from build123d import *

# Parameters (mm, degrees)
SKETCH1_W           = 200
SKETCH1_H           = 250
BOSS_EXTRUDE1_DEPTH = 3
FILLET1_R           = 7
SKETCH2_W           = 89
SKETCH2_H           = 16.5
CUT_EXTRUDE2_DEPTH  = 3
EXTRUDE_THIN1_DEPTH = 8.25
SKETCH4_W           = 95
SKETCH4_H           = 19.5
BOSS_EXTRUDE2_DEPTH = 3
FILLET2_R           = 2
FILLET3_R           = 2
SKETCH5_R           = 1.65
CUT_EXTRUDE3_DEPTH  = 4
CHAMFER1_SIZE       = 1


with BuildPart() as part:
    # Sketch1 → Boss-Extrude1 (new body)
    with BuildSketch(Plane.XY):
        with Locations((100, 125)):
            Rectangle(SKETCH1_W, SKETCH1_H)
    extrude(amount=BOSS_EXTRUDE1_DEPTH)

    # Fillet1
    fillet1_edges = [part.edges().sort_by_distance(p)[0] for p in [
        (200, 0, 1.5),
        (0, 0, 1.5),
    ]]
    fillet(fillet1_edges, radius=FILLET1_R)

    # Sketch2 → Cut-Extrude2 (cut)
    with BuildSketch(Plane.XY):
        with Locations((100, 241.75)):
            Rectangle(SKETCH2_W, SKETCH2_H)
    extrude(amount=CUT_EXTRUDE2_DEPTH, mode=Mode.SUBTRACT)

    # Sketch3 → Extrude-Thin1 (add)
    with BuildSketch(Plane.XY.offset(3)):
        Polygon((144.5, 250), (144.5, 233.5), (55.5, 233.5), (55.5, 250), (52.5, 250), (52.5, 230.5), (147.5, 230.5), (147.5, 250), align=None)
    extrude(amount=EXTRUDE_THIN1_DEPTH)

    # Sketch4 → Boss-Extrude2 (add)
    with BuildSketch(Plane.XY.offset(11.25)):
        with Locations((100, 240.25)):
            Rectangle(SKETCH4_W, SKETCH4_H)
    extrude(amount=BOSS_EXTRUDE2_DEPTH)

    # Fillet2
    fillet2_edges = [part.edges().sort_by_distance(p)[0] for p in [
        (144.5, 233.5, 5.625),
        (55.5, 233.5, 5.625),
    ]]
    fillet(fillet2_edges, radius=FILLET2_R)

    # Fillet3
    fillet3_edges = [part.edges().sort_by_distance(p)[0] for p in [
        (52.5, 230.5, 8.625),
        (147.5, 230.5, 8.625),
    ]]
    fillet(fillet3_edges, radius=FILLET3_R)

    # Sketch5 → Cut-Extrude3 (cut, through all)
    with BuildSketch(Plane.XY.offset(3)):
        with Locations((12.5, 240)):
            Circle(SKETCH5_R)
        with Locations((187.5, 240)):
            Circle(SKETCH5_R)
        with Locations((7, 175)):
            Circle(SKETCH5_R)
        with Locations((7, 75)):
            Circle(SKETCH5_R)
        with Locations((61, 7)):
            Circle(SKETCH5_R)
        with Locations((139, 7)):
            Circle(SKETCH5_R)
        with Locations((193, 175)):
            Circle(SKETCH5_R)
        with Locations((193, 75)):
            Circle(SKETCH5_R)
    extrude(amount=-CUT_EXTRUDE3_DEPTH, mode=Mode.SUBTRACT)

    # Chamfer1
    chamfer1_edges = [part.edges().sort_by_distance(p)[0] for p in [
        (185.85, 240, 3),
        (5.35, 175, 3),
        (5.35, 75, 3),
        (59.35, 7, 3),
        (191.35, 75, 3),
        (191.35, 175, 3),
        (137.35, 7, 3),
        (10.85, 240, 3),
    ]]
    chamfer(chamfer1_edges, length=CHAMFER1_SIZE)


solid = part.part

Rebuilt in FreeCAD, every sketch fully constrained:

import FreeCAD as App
import Part
import Sketcher
from FreeCAD import Vector


def edges_at(feature, points):
    """Names of the edges that pass closest to the given points."""
    edges = feature.Shape.Edges
    near = lambda p: min(range(len(edges)), key=lambda i: edges[i].distToShape(Part.Vertex(*p))[0])
    return sorted({f"Edge{near(p) + 1}" for p in points})

doc = App.newDocument("Part")
body = doc.addObject("PartDesign::Body", "Body")

# Sketch on XY plane
sketch1 = doc.addObject("Sketcher::SketchObject", "Sketch")
body.addObject(sketch1)
sketch1.AttachmentSupport = (doc.XY_Plane, [""])
sketch1.MapMode = "FlatFace"
sketch1.addGeometry([
    Part.LineSegment(Vector(0, 250, 0), Vector(0, 0, 0)),
    Part.LineSegment(Vector(0, 0, 0), Vector(200, 0, 0)),
    Part.LineSegment(Vector(200, 0, 0), Vector(200, 250, 0)),
    Part.LineSegment(Vector(200, 250, 0), Vector(0, 250, 0)),
], False)
sketch1.addConstraint([
    Sketcher.Constraint("Coincident", 0, 2, 1, 1),
    Sketcher.Constraint("Coincident", 1, 2, 2, 1),
    Sketcher.Constraint("Coincident", 2, 2, 3, 1),
    Sketcher.Constraint("Coincident", 3, 2, 0, 1),
    Sketcher.Constraint("Vertical", 0),
    Sketcher.Constraint("Horizontal", 1),
    Sketcher.Constraint("Vertical", 2),
    Sketcher.Constraint("Horizontal", 3),
    Sketcher.Constraint("Coincident", 0, 2, -1, 1),
    Sketcher.Constraint("DistanceX", 1, 1, 1, 2, 200.0),
    Sketcher.Constraint("DistanceY", 0, 2, 0, 1, 250.0),
])
pad1 = doc.addObject("PartDesign::Pad", "Pad")
body.addObject(pad1)
pad1.Profile = sketch1
pad1.Length = 3
doc.recompute()

fillet = doc.addObject("PartDesign::Fillet", "Fillet")
body.addObject(fillet)
fillet.Base = (pad1, edges_at(pad1, [(200, 0, 1.5), (0, 0, 1.5)]))
fillet.Radius = 7

# Sketch on XY plane
sketch2 = doc.addObject("Sketcher::SketchObject", "Sketch001")
body.addObject(sketch2)
sketch2.AttachmentSupport = (doc.XY_Plane, [""])
sketch2.MapMode = "FlatFace"
sketch2.addGeometry([
    Part.LineSegment(Vector(56, 250, 0), Vector(56, 234, 0)),
    Part.LineSegment(Vector(56, 234, 0), Vector(144, 234, 0)),
    Part.LineSegment(Vector(144, 234, 0), Vector(144, 250, 0)),
    Part.LineSegment(Vector(144, 250, 0), Vector(56, 250, 0)),
], False)
sketch2.addConstraint([
    Sketcher.Constraint("Coincident", 0, 2, 1, 1),
    Sketcher.Constraint("Coincident", 1, 2, 2, 1),
    Sketcher.Constraint("Coincident", 2, 2, 3, 1),
    Sketcher.Constraint("Coincident", 3, 2, 0, 1),
    Sketcher.Constraint("Vertical", 0),
    Sketcher.Constraint("Horizontal", 1),
    Sketcher.Constraint("Vertical", 2),
    Sketcher.Constraint("Horizontal", 3),
    Sketcher.Constraint("DistanceX", 1, 1, 1, 2, 89.0),
    Sketcher.Constraint("DistanceY", 0, 2, 0, 1, 16.5),
    Sketcher.Constraint("DistanceY", -1, 1, 2, 2, 250.0),
    Sketcher.Constraint("DistanceX", -1, 1, 0, 2, 55.5),
])
pocket1 = doc.addObject("PartDesign::Pocket", "Pocket")
body.addObject(pocket1)
pocket1.Profile = sketch2
pocket1.Length = 3
pocket1.Reversed = True

# Sketch on XY plane
sketch3 = doc.addObject("Sketcher::SketchObject", "Sketch002")
body.addObject(sketch3)
sketch3.AttachmentSupport = (doc.XY_Plane, [""])
sketch3.MapMode = "FlatFace"
sketch3.AttachmentOffset = App.Placement(Vector(0, 0, 3), App.Rotation())
sketch3.addGeometry([
    Part.LineSegment(Vector(144.5, 250, 0), Vector(144.5, 233.5, 0)),  # 0
    Part.LineSegment(Vector(144.5, 233.5, 0), Vector(55.5, 233.5, 0)),  # 1
    Part.LineSegment(Vector(55.5, 233.5, 0), Vector(55.5, 250, 0)),  # 2
    Part.LineSegment(Vector(55.5, 250, 0), Vector(52.5, 250, 0)),  # 3
    Part.LineSegment(Vector(52.5, 250, 0), Vector(52.5, 230.5, 0)),  # 4
    Part.LineSegment(Vector(52.5, 230.5, 0), Vector(147.5, 230.5, 0)),  # 5
    Part.LineSegment(Vector(147.5, 230.5, 0), Vector(147.5, 250, 0)),  # 6
    Part.LineSegment(Vector(147.5, 250, 0), Vector(144.5, 250, 0)),  # 7
], False)
sketch3.addConstraint([
    Sketcher.Constraint("Coincident", 0, 2, 1, 1),
    Sketcher.Constraint("Coincident", 1, 2, 2, 1),
    Sketcher.Constraint("Coincident", 2, 2, 3, 1),
    Sketcher.Constraint("Coincident", 3, 2, 4, 1),
    Sketcher.Constraint("Coincident", 4, 2, 5, 1),
    Sketcher.Constraint("Coincident", 5, 2, 6, 1),
    Sketcher.Constraint("Coincident", 6, 2, 7, 1),
    Sketcher.Constraint("Coincident", 7, 2, 0, 1),
    Sketcher.Constraint("Vertical", 0),
    Sketcher.Constraint("Horizontal", 1),
    Sketcher.Constraint("Vertical", 2),
    Sketcher.Constraint("Horizontal", 3),
    Sketcher.Constraint("Vertical", 4),
    Sketcher.Constraint("Horizontal", 5),
    Sketcher.Constraint("Vertical", 6),
    Sketcher.Constraint("Horizontal", 7),
    Sketcher.Constraint("Horizontal", 3, 2, 6, 2),
    Sketcher.Constraint("Equal", 3, 7),
    Sketcher.Constraint("DistanceX", 1, 2, 1, 1, 89.0),
    Sketcher.Constraint("DistanceX", 3, 2, 3, 1, 3.0),
    Sketcher.Constraint("DistanceY", 0, 2, 0, 1, 16.5),
    Sketcher.Constraint("DistanceY", 4, 2, 4, 1, 19.5),
    Sketcher.Constraint("DistanceY", -1, 1, 2, 2, 250.0),
    Sketcher.Constraint("DistanceX", -1, 1, 0, 2, 144.5),
])
pad2 = doc.addObject("PartDesign::Pad", "Pad001")
body.addObject(pad2)
pad2.Profile = sketch3
pad2.Length = 8.25

# Sketch on XY plane
sketch4 = doc.addObject("Sketcher::SketchObject", "Sketch003")
body.addObject(sketch4)
sketch4.AttachmentSupport = (doc.XY_Plane, [""])
sketch4.MapMode = "FlatFace"
sketch4.AttachmentOffset = App.Placement(Vector(0, 0, 11.25), App.Rotation())
sketch4.addGeometry([
    Part.LineSegment(Vector(52, 250, 0), Vector(52, 230, 0)),
    Part.LineSegment(Vector(52, 230, 0), Vector(148, 230, 0)),
    Part.LineSegment(Vector(148, 230, 0), Vector(148, 250, 0)),
    Part.LineSegment(Vector(148, 250, 0), Vector(52, 250, 0)),
], False)
sketch4.addConstraint([
    Sketcher.Constraint("Coincident", 0, 2, 1, 1),
    Sketcher.Constraint("Coincident", 1, 2, 2, 1),
    Sketcher.Constraint("Coincident", 2, 2, 3, 1),
    Sketcher.Constraint("Coincident", 3, 2, 0, 1),
    Sketcher.Constraint("Vertical", 0),
    Sketcher.Constraint("Horizontal", 1),
    Sketcher.Constraint("Vertical", 2),
    Sketcher.Constraint("Horizontal", 3),
    Sketcher.Constraint("DistanceX", 1, 1, 1, 2, 95.0),
    Sketcher.Constraint("DistanceY", 0, 2, 0, 1, 19.5),
    Sketcher.Constraint("DistanceY", -1, 1, 2, 2, 250.0),
    Sketcher.Constraint("DistanceX", -1, 1, 0, 2, 52.5),
])
pad3 = doc.addObject("PartDesign::Pad", "Pad002")
body.addObject(pad3)
pad3.Profile = sketch4
pad3.Length = 3
doc.recompute()

fillet2 = doc.addObject("PartDesign::Fillet", "Fillet001")
body.addObject(fillet2)
fillet2.Base = (pad3, edges_at(pad3, [(144.5, 233.5, 5.625), (55.5, 233.5, 5.625)]))
fillet2.Radius = 2
doc.recompute()

fillet3 = doc.addObject("PartDesign::Fillet", "Fillet002")
body.addObject(fillet3)
fillet3.Base = (fillet2, edges_at(fillet2, [(52.5, 230.5, 8.625), (147.5, 230.5, 8.625)]))
fillet3.Radius = 2

# Sketch on XY plane
sketch5 = doc.addObject("Sketcher::SketchObject", "Sketch004")
body.addObject(sketch5)
sketch5.AttachmentSupport = (doc.XY_Plane, [""])
sketch5.MapMode = "FlatFace"
sketch5.AttachmentOffset = App.Placement(Vector(0, 0, 3), App.Rotation())
sketch5.addGeometry([
    Part.Circle(Vector(12.5, 240, 0), Vector(0, 0, 1), 1.6),  # 0
    Part.Circle(Vector(187.5, 240, 0), Vector(0, 0, 1), 1.6),  # 1
    Part.Circle(Vector(7, 175, 0), Vector(0, 0, 1), 1.6),  # 2
    Part.Circle(Vector(7, 75, 0), Vector(0, 0, 1), 1.6),  # 3
    Part.Circle(Vector(61, 7, 0), Vector(0, 0, 1), 1.6),  # 4
    Part.Circle(Vector(139, 7, 0), Vector(0, 0, 1), 1.6),  # 5
    Part.Circle(Vector(193, 175, 0), Vector(0, 0, 1), 1.6),  # 6
    Part.Circle(Vector(193, 75, 0), Vector(0, 0, 1), 1.6),  # 7
], False)
sketch5.addConstraint([
    Sketcher.Constraint("Equal", 0, 1),
    Sketcher.Constraint("Equal", 1, 2),
    Sketcher.Constraint("Equal", 2, 3),
    Sketcher.Constraint("Equal", 3, 4),
    Sketcher.Constraint("Equal", 4, 5),
    Sketcher.Constraint("Equal", 5, 6),
    Sketcher.Constraint("Equal", 6, 7),
    Sketcher.Constraint("Horizontal", 0, 3, 1, 3),
    Sketcher.Constraint("Horizontal", 4, 3, 5, 3),
    Sketcher.Constraint("Horizontal", 2, 3, 6, 3),
    Sketcher.Constraint("Horizontal", 3, 3, 7, 3),
    Sketcher.Constraint("Vertical", 2, 3, 3, 3),
    Sketcher.Constraint("Vertical", 6, 3, 7, 3),
    Sketcher.Constraint("Diameter", 0, 3.3),
    Sketcher.Constraint("DistanceY", -1, 1, 0, 3, 240.0),
    Sketcher.Constraint("DistanceX", -1, 1, 2, 3, 7.0),
    Sketcher.Constraint("DistanceY", -1, 1, 2, 3, 175.0),
    Sketcher.Constraint("DistanceY", -1, 1, 3, 3, 75.0),
    Sketcher.Constraint("DistanceX", -1, 1, 4, 3, 61.0),
    Sketcher.Constraint("DistanceY", -1, 1, 4, 3, 7.0),
    Sketcher.Constraint("DistanceX", -1, 1, 5, 3, 139.0),
    Sketcher.Constraint("DistanceX", -1, 1, 6, 3, 193.0),
    Sketcher.Constraint("DistanceX", 0, 3, 1, 3, 175.0),
    Sketcher.Constraint("DistanceX", -1, 1, 0, 3, 12.5),
])
pocket2 = doc.addObject("PartDesign::Pocket", "Pocket001")
body.addObject(pocket2)
pocket2.Profile = sketch5
pocket2.Type = "ThroughAll"
doc.recompute()

chamfer = doc.addObject("PartDesign::Chamfer", "Chamfer")
body.addObject(chamfer)
chamfer.Base = (pocket2, edges_at(pocket2, [
    (185.85, 240, 3),
    (5.35, 175, 3),
    (5.35, 75, 3),
    (59.35, 7, 3),
    (191.35, 75, 3),
    (191.35, 175, 3),
    (137.35, 7, 3),
    (10.85, 240, 3),
]))
chamfer.Size = 1

doc.recompute()
